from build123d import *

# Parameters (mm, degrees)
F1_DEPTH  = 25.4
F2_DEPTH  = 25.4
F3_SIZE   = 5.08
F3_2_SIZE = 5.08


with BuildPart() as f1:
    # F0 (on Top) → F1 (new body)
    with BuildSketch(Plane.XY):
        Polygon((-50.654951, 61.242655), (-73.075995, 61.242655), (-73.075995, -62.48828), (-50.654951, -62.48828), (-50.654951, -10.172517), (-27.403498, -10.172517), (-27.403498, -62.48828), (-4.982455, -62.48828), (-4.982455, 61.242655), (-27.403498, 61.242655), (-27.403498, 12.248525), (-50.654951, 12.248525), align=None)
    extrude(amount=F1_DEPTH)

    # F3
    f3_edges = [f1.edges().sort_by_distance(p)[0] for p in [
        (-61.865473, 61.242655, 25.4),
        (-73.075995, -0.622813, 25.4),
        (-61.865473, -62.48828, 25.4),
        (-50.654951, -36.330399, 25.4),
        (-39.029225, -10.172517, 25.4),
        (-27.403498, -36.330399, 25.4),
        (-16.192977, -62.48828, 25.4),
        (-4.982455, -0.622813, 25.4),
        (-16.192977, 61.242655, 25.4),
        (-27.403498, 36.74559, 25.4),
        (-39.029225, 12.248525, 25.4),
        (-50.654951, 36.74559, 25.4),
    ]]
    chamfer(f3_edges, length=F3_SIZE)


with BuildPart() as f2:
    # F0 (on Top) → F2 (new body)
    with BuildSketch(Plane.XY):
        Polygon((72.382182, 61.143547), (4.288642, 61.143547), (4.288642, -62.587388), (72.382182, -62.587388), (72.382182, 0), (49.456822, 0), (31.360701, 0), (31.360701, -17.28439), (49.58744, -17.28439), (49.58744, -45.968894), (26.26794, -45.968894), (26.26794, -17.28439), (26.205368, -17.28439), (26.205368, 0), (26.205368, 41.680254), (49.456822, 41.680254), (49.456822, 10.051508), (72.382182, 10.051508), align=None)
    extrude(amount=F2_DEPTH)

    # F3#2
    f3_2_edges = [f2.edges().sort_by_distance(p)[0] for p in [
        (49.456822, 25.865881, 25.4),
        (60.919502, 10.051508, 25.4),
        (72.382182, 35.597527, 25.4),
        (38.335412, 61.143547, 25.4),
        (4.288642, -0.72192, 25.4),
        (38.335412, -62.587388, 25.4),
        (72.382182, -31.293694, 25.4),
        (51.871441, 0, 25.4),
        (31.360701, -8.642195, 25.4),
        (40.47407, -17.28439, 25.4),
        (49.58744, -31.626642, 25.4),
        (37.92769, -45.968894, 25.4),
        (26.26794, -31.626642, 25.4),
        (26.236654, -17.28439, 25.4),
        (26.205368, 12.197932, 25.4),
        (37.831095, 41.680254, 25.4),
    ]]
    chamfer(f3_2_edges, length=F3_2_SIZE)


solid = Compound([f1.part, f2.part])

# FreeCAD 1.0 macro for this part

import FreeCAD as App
import Part
import Sketcher
from FreeCAD import Vector
Q = App.Units.Quantity


def edges_at(feature, points):
    """Names of the edges that pass closest to the given points."""
    edges = feature.Shape.Edges
    near = lambda p: min(range(len(edges)), key=lambda i: edges[i].distToShape(Part.Vertex(*p))[0])
    return sorted({f"Edge{near(p) + 1}" for p in points})

doc = App.newDocument("Part")
body = doc.addObject("PartDesign::Body", "Body")

sketch1 = body.newObject("Sketcher::SketchObject", "Sketch")
sketch1.AttachmentSupport = (doc.getObject("XY_Plane"), [""])
sketch1.MapMode = "FlatFace"
sketch1.addGeometry(Part.LineSegment(Vector(-51, 61, 0), Vector(-73, 61, 0)), False)
sketch1.addGeometry(Part.LineSegment(Vector(-73, 61, 0), Vector(-73, -62, 0)), False)
sketch1.addGeometry(Part.LineSegment(Vector(-73, -62, 0), Vector(-51, -62, 0)), False)
sketch1.addGeometry(Part.LineSegment(Vector(-51, -62, 0), Vector(-51, -10, 0)), False)
sketch1.addGeometry(Part.LineSegment(Vector(-51, -10, 0), Vector(-27, -10, 0)), False)
sketch1.addGeometry(Part.LineSegment(Vector(-27, -10, 0), Vector(-27, -62, 0)), False)
sketch1.addGeometry(Part.LineSegment(Vector(-27, -62, 0), Vector(-5, -62, 0)), False)
sketch1.addGeometry(Part.LineSegment(Vector(-5, -62, 0), Vector(-5, 61, 0)), False)
sketch1.addGeometry(Part.LineSegment(Vector(-5, 61, 0), Vector(-27, 61, 0)), False)
sketch1.addGeometry(Part.LineSegment(Vector(-27, 61, 0), Vector(-27, 12, 0)), False)
sketch1.addGeometry(Part.LineSegment(Vector(-27, 12, 0), Vector(-51, 12, 0)), False)
sketch1.addGeometry(Part.LineSegment(Vector(-51, 12, 0), Vector(-51, 61, 0)), False)
sketch1.addConstraint(Sketcher.Constraint("Coincident", 0, 2, 1, 1))
sketch1.addConstraint(Sketcher.Constraint("Coincident", 1, 2, 2, 1))
sketch1.addConstraint(Sketcher.Constraint("Coincident", 2, 2, 3, 1))
sketch1.addConstraint(Sketcher.Constraint("Coincident", 3, 2, 4, 1))
sketch1.addConstraint(Sketcher.Constraint("Coincident", 4, 2, 5, 1))
sketch1.addConstraint(Sketcher.Constraint("Coincident", 5, 2, 6, 1))
sketch1.addConstraint(Sketcher.Constraint("Coincident", 6, 2, 7, 1))
sketch1.addConstraint(Sketcher.Constraint("Coincident", 7, 2, 8, 1))
sketch1.addConstraint(Sketcher.Constraint("Coincident", 8, 2, 9, 1))
sketch1.addConstraint(Sketcher.Constraint("Coincident", 9, 2, 10, 1))
sketch1.addConstraint(Sketcher.Constraint("Coincident", 10, 2, 11, 1))
sketch1.addConstraint(Sketcher.Constraint("Coincident", 11, 2, 0, 1))
sketch1.addConstraint(Sketcher.Constraint("Horizontal", 0))
sketch1.addConstraint(Sketcher.Constraint("Vertical", 1))
sketch1.addConstraint(Sketcher.Constraint("Horizontal", 2))
sketch1.addConstraint(Sketcher.Constraint("Vertical", 3))
sketch1.addConstraint(Sketcher.Constraint("Horizontal", 4))
sketch1.addConstraint(Sketcher.Constraint("Vertical", 5))
sketch1.addConstraint(Sketcher.Constraint("Horizontal", 6))
sketch1.addConstraint(Sketcher.Constraint("Vertical", 7))
sketch1.addConstraint(Sketcher.Constraint("Horizontal", 8))
sketch1.addConstraint(Sketcher.Constraint("Vertical", 9))
sketch1.addConstraint(Sketcher.Constraint("Horizontal", 10))
sketch1.addConstraint(Sketcher.Constraint("Vertical", 11))
sketch1.addConstraint(Sketcher.Constraint("Horizontal", 2, 2, 5, 2))
sketch1.addConstraint(Sketcher.Constraint("Horizontal", 0, 2, 7, 2))
sketch1.addConstraint(Sketcher.Constraint("Vertical", 5, 2, 8, 2))
sketch1.addConstraint(Sketcher.Constraint("Vertical", 3, 2, 10, 2))
sketch1.addConstraint(Sketcher.Constraint("Equal", 2, 6))
sketch1.addConstraint(Sketcher.Constraint("DistanceY", 9, 2, 9, 1, Q("48.99413 mm")))
sketch1.addConstraint(Sketcher.Constraint("DistanceX", 0, 2, 0, 1, Q("22.421044 mm")))
sketch1.addConstraint(Sketcher.Constraint("DistanceX", 4, 1, 4, 2, Q("23.251453 mm")))
sketch1.addConstraint(Sketcher.Constraint("DistanceY", 1, 2, 1, 1, Q("123.730935 mm")))
sketch1.addConstraint(Sketcher.Constraint("DistanceY", 3, 1, 3, 2, Q("52.315763 mm")))
sketch1.addConstraint(Sketcher.Constraint("DistanceY", 1, 2, -1, 1, Q("62.48828 mm")))
sketch1.addConstraint(Sketcher.Constraint("DistanceX", 2, 2, -1, 1, Q("50.654951 mm")))
pad1 = body.newObject("PartDesign::Pad", "Pad")
pad1.Profile = sketch1
pad1.Length = Q("1 in")
doc.recompute()

chamfer = body.newObject("PartDesign::Chamfer", "Chamfer")
chamfer.Base = (pad1, edges_at(pad1, [
    (-61.865, 61.243, 25.4),
    (-73.076, -0.623, 25.4),
    (-61.865, -62.488, 25.4),
    (-50.655, -36.33, 25.4),
    (-39.029, -10.173, 25.4),
    (-27.403, -36.33, 25.4),
    (-16.193, -62.488, 25.4),
    (-4.982, -0.623, 25.4),
    (-16.193, 61.243, 25.4),
    (-27.403, 36.746, 25.4),
    (-39.029, 12.249, 25.4),
    (-50.655, 36.746, 25.4),
]))
chamfer.Size = Q("0.2 in")
body2 = doc.addObject("PartDesign::Body", "Body001")

sketch2 = body2.newObject("Sketcher::SketchObject", "Sketch001")
sketch2.AttachmentSupport = (doc.getObject("XY_Plane001"), [""])
sketch2.MapMode = "FlatFace"
sketch2.addGeometry(Part.LineSegment(Vector(72.38, 61.14, 0), Vector(4.29, 61.14, 0)), False)
sketch2.addGeometry(Part.LineSegment(Vector(4.29, 61.14, 0), Vector(4.29, -62.59, 0)), False)
sketch2.addGeometry(Part.LineSegment(Vector(4.29, -62.59, 0), Vector(72.38, -62.59, 0)), False)
sketch2.addGeometry(Part.LineSegment(Vector(72.38, -62.59, 0), Vector(72.38, 0, 0)), False)
sketch2.addGeometry(Part.LineSegment(Vector(72.38, 0, 0), Vector(31.36, 0, 0)), False)
sketch2.addGeometry(Part.LineSegment(Vector(31.36, 0, 0), Vector(31.36, -17.28, 0)), False)
sketch2.addGeometry(Part.LineSegment(Vector(31.36, -17.28, 0), Vector(49.59, -17.28, 0)), False)
sketch2.addGeometry(Part.LineSegment(Vector(49.59, -17.28, 0), Vector(49.59, -45.97, 0)), False)
sketch2.addGeometry(Part.LineSegment(Vector(49.59, -45.97, 0), Vector(26.27, -45.97, 0)), False)
sketch2.addGeometry(Part.LineSegment(Vector(26.27, -45.97, 0), Vector(26.27, -17.28, 0)), False)
sketch2.addGeometry(Part.LineSegment(Vector(26.27, -17.28, 0), Vector(26.21, -17.28, 0)), False)
sketch2.addGeometry(Part.LineSegment(Vector(26.21, -17.28, 0), Vector(26.21, 41.68, 0)), False)
sketch2.addGeometry(Part.LineSegment(Vector(26.21, 41.68, 0), Vector(49.46, 41.68, 0)), False)
sketch2.addGeometry(Part.LineSegment(Vector(49.46, 41.68, 0), Vector(49.46, 10.05, 0)), False)
sketch2.addGeometry(Part.LineSegment(Vector(49.46, 10.05, 0), Vector(72.38, 10.05, 0)), False)
sketch2.addGeometry(Part.LineSegment(Vector(72.38, 10.05, 0), Vector(72.38, 61.14, 0)), False)
sketch2.addConstraint(Sketcher.Constraint("Coincident", 0, 2, 1, 1))
sketch2.addConstraint(Sketcher.Constraint("Coincident", 1, 2, 2, 1))
sketch2.addConstraint(Sketcher.Constraint("Coincident", 2, 2, 3, 1))
sketch2.addConstraint(Sketcher.Constraint("Coincident", 3, 2, 4, 1))
sketch2.addConstraint(Sketcher.Constraint("Coincident", 4, 2, 5, 1))
sketch2.addConstraint(Sketcher.Constraint("Coincident", 5, 2, 6, 1))
sketch2.addConstraint(Sketcher.Constraint("Coincident", 6, 2, 7, 1))
sketch2.addConstraint(Sketcher.Constraint("Coincident", 7, 2, 8, 1))
sketch2.addConstraint(Sketcher.Constraint("Coincident", 8, 2, 9, 1))
sketch2.addConstraint(Sketcher.Constraint("Coincident", 9, 2, 10, 1))
sketch2.addConstraint(Sketcher.Constraint("Coincident", 10, 2, 11, 1))
sketch2.addConstraint(Sketcher.Constraint("Coincident", 11, 2, 12, 1))
sketch2.addConstraint(Sketcher.Constraint("Coincident", 12, 2, 13, 1))
sketch2.addConstraint(Sketcher.Constraint("Coincident", 13, 2, 14, 1))
sketch2.addConstraint(Sketcher.Constraint("Coincident", 14, 2, 15, 1))
sketch2.addConstraint(Sketcher.Constraint("Coincident", 15, 2, 0, 1))
sketch2.addConstraint(Sketcher.Constraint("Horizontal", 0))
sketch2.addConstraint(Sketcher.Constraint("Vertical", 1))
sketch2.addConstraint(Sketcher.Constraint("Horizontal", 2))
sketch2.addConstraint(Sketcher.Constraint("Vertical", 3))
sketch2.addConstraint(Sketcher.Constraint("Horizontal", 4))
sketch2.addConstraint(Sketcher.Constraint("Vertical", 5))
sketch2.addConstraint(Sketcher.Constraint("Horizontal", 6))
sketch2.addConstraint(Sketcher.Constraint("Vertical", 7))
sketch2.addConstraint(Sketcher.Constraint("Horizontal", 8))
sketch2.addConstraint(Sketcher.Constraint("Vertical", 9))
sketch2.addConstraint(Sketcher.Constraint("Horizontal", 10))
sketch2.addConstraint(Sketcher.Constraint("Vertical", 11))
sketch2.addConstraint(Sketcher.Constraint("Horizontal", 12))
sketch2.addConstraint(Sketcher.Constraint("Vertical", 13))
sketch2.addConstraint(Sketcher.Constraint("Horizontal", 14))
sketch2.addConstraint(Sketcher.Constraint("Vertical", 15))
sketch2.addConstraint(Sketcher.Constraint("PointOnObject", 3, 2, -1))
sketch2.addConstraint(Sketcher.Constraint("Horizontal", 6, 2, 9, 2))
sketch2.addConstraint(Sketcher.Constraint("Vertical", 3, 2, 14, 2))
sketch2.addConstraint(Sketcher.Constraint("DistanceX", 8, 2, 8, 1, Q("23.3195 mm")))
sketch2.addConstraint(Sketcher.Constraint("DistanceX", 0, 2, 0, 1, Q("68.09354 mm")))
sketch2.addConstraint(Sketcher.Constraint("DistanceX", 4, 2, 4, 1, Q("41.021481 mm")))
sketch2.addConstraint(Sketcher.Constraint("DistanceX", 6, 1, 6, 2, Q("18.226739 mm")))
sketch2.addConstraint(Sketcher.Constraint("DistanceX", 10, 2, 10, 1, Q("0.062572 mm")))
sketch2.addConstraint(Sketcher.Constraint("DistanceX", 14, 1, 14, 2, Q("22.92536 mm")))
sketch2.addConstraint(Sketcher.Constraint("DistanceY", 5, 2, 5, 1, Q("17.28439 mm")))
sketch2.addConstraint(Sketcher.Constraint("DistanceY", 15, 1, 15, 2, Q("51.092039 mm")))
sketch2.addConstraint(Sketcher.Constraint("DistanceX", -1, 1, 4, 2, Q("31.360701 mm")))
sketch2.addConstraint(Sketcher.Constraint("DistanceY", 1, 2, 5, 2, Q("45.302998 mm")))
sketch2.addConstraint(Sketcher.Constraint("DistanceY", 6, 2, 13, 2, Q("27.335898 mm")))
sketch2.addConstraint(Sketcher.Constraint("DistanceY", 7, 2, 7, 1, Q("28.684504 mm")))
sketch2.addConstraint(Sketcher.Constraint("DistanceY", 11, 1, 11, 2, Q("58.964644 mm")))
pad2 = body2.newObject("PartDesign::Pad", "Pad001")
pad2.Profile = sketch2
pad2.Length = Q("1 in")
doc.recompute()

chamfer2 = body2.newObject("PartDesign::Chamfer", "Chamfer001")
chamfer2.Base = (pad2, edges_at(pad2, [
    (49.457, 25.866, 25.4),
    (60.92, 10.052, 25.4),
    (72.382, 35.598, 25.4),
    (38.335, 61.144, 25.4),
    (4.289, -0.722, 25.4),
    (38.335, -62.587, 25.4),
    (72.382, -31.294, 25.4),
    (51.871, 0, 25.4),
    (31.361, -8.642, 25.4),
    (40.474, -17.284, 25.4),
    (49.587, -31.627, 25.4),
    (37.928, -45.969, 25.4),
    (26.268, -31.627, 25.4),
    (26.237, -17.284, 25.4),
    (26.205, 12.198, 25.4),
    (37.831, 41.68, 25.4),
]))
chamfer2.Size = Q("0.2 in")

doc.recompute()
